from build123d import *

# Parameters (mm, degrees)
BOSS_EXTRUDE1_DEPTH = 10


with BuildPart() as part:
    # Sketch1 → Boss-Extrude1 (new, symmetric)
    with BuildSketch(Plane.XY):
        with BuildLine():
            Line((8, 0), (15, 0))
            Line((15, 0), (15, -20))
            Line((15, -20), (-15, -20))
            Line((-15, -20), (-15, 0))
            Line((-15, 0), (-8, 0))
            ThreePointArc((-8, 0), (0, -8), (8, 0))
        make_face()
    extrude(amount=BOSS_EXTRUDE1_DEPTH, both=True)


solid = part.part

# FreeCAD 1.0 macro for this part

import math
import FreeCAD as App
import Part
import Sketcher

V = App.Vector

doc = App.newDocument("Part")
body = doc.addObject("PartDesign::Body", "Body")

sketch1 = body.newObject("Sketcher::SketchObject", "Sketch")
sketch1.AttachmentSupport = (doc.getObject("XY_Plane"), [""])
sketch1.MapMode = "FlatFace"
sketch1.addGeometry([
    Part.LineSegment(V(15, 0, 0), V(8, 0, 0)),
    Part.ArcOfCircle(Part.Circle(V(0, 0, 0), V(0, 0, 1), 8), math.radians(180), math.radians(360)),
    Part.LineSegment(V(-8, 0, 0), V(-15, 0, 0)),
    Part.LineSegment(V(-15, 0, 0), V(-15, -20, 0)),
    Part.LineSegment(V(-15, -20, 0), V(15, -20, 0)),
    Part.LineSegment(V(15, -20, 0), V(15, 0, 0)),
], False)
sketch1.addConstraint([
    Sketcher.Constraint("Coincident", 0, 2, 1, 2),
    Sketcher.Constraint("Coincident", 1, 1, 2, 1),
    Sketcher.Constraint("Coincident", 2, 2, 3, 1),
    Sketcher.Constraint("Coincident", 3, 2, 4, 1),
    Sketcher.Constraint("Coincident", 4, 2, 5, 1),
    Sketcher.Constraint("Coincident", 5, 2, 0, 1),
    Sketcher.Constraint("Horizontal", 0),
    Sketcher.Constraint("Horizontal", 2),
    Sketcher.Constraint("Vertical", 3),
    Sketcher.Constraint("Horizontal", 4),
    Sketcher.Constraint("Vertical", 5),
    Sketcher.Constraint("Coincident", 1, 3, -1, 1),
    Sketcher.Constraint("Symmetric", 2, 2, 5, 2, -1, 1),
    Sketcher.Constraint("PointOnObject", 0, 2, -1),
    Sketcher.Constraint("Radius", 1, 8.0),
    Sketcher.Constraint("DistanceX", 0, 2, 0, 1, 7.0),
    Sketcher.Constraint("DistanceY", 3, 2, 3, 1, 20.0),
])
pad1 = body.newObject("PartDesign::Pad", "Pad")
pad1.Profile = sketch1
pad1.Length = 20
pad1.Midplane = True

doc.recompute()
